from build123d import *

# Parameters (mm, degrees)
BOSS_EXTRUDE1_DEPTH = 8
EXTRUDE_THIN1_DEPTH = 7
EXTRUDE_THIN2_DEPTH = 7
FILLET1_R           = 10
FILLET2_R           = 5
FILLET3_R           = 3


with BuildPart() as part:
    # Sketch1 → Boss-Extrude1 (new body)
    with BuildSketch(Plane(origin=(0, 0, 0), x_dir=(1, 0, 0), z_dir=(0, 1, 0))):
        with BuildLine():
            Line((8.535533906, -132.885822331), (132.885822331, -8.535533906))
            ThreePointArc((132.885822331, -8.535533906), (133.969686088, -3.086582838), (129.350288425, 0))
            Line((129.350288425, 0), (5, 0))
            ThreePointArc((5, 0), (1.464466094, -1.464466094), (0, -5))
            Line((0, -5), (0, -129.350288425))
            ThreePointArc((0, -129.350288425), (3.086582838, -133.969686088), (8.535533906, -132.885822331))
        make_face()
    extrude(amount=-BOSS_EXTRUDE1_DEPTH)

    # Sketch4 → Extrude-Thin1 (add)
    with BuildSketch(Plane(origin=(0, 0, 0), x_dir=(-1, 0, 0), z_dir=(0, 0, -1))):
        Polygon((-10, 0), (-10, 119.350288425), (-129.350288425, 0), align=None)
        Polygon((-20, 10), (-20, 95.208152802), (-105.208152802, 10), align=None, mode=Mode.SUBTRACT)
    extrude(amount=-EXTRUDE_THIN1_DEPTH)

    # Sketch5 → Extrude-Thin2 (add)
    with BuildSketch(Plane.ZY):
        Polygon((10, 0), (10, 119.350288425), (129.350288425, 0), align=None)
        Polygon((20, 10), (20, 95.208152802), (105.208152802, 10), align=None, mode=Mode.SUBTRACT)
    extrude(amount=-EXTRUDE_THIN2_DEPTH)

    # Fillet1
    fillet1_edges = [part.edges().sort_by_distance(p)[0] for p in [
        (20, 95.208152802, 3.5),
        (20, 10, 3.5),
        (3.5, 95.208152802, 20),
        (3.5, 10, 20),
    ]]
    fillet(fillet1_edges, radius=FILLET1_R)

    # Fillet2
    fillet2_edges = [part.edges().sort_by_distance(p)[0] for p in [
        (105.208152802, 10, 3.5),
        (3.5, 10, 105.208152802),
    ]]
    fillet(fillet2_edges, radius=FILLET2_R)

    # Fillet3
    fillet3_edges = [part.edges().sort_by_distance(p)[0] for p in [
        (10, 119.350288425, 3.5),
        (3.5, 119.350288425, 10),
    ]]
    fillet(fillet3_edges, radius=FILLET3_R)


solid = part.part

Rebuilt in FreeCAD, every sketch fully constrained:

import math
import FreeCAD as App
import Part
import Sketcher
from FreeCAD import Vector


def edges_at(feature, points):
    """Names of the edges that pass closest to the given points."""
    edges = feature.Shape.Edges
    near = lambda p: min(range(len(edges)), key=lambda i: edges[i].distToShape(Part.Vertex(*p))[0])
    return sorted({f"Edge{near(p) + 1}" for p in points})


def add_polygon(sketch, points):
    """Adds a closed chain of lines whose ends are joined by coincident constraints."""
    first, n = sketch.GeometryCount, len(points)
    for a, b in zip(points, points[1:] + points[:1]):
        sketch.addGeometry(Part.LineSegment(App.Vector(*a, 0), App.Vector(*b, 0)), False)
    for i in range(n):
        sketch.addConstraint(Sketcher.Constraint("Coincident", first + i, 2, first + (i + 1) % n, 1))

doc = App.newDocument("Part")
body = doc.addObject("PartDesign::Body", "Body")

# Sketch on XZ plane
sketch1 = body.newObject("Sketcher::SketchObject", "Sketch")
sketch1.AttachmentSupport = (doc.getObject("XZ_Plane"), [""])
sketch1.MapMode = "FlatFace"
sketch1.addGeometry([
    Part.LineSegment(Vector(8.535534, 132.885822, 0), Vector(132.885822, 8.535534, 0)),  # 0
    Part.ArcOfCircle(Part.Circle(Vector(129.350288, 5, 0), Vector(0, 0, 1), 5), math.radians(-90), math.radians(45)),  # 1
    Part.LineSegment(Vector(129.350288, 0, 0), Vector(5, 0, 0)),  # 2
    Part.ArcOfCircle(Part.Circle(Vector(5, 5, 0), Vector(0, 0, 1), 5), math.radians(180), math.radians(270)),  # 3
    Part.LineSegment(Vector(0, 5, 0), Vector(0, 129.350288, 0)),  # 4
    Part.ArcOfCircle(Part.Circle(Vector(5, 129.350288, 0), Vector(0, 0, 1), 5), math.radians(45), math.radians(180)),  # 5
], False)
sketch1.addConstraint([
    Sketcher.Constraint("Tangent", 0, 2, 1, 2),
    Sketcher.Constraint("Tangent", 1, 1, 2, 1),
    Sketcher.Constraint("Tangent", 2, 2, 3, 2),
    Sketcher.Constraint("Tangent", 3, 1, 4, 1),
    Sketcher.Constraint("Tangent", 4, 2, 5, 2),
    Sketcher.Constraint("Tangent", 5, 1, 0, 1),
    Sketcher.Constraint("Horizontal", 2),
    Sketcher.Constraint("Vertical", 4),
    Sketcher.Constraint("Equal", 1, 3),
    Sketcher.Constraint("Equal", 3, 5),
    Sketcher.Constraint("PointOnObject", 1, 1, -1),
    Sketcher.Constraint("PointOnObject", 3, 1, -2),
    Sketcher.Constraint("Equal", 2, 4),
    Sketcher.Constraint("Radius", 1, 5.0),
    Sketcher.Constraint("DistanceX", 2, 2, 2, 1, 124.350288),
])
pad1 = body.newObject("PartDesign::Pad", "Pad")
pad1.Profile = sketch1
pad1.Length = 8

# Sketch on XY plane
sketch2 = body.newObject("Sketcher::SketchObject", "Sketch001")
sketch2.AttachmentSupport = (doc.getObject("XY_Plane"), [""])
sketch2.MapMode = "FlatFace"
add_polygon(sketch2, [(10, 0), (10, 119.350288), (129.350288, 0)])  # lines 0-2
add_polygon(sketch2, [(20, 95.208153), (20, 10), (105.208153, 10)])  # lines 3-5
sketch2.addConstraint([
    Sketcher.Constraint("Vertical", 0),
    Sketcher.Constraint("Horizontal", 2),
    Sketcher.Constraint("Vertical", 3),
    Sketcher.Constraint("Horizontal", 4),
    Sketcher.Constraint("PointOnObject", 1, 2, -1),
    Sketcher.Constraint("Parallel", 1, 5),
    Sketcher.Constraint("Equal", 2, 0),
    Sketcher.Constraint("DistanceX", -1, 1, 0, 2, 10.0),
    Sketcher.Constraint("DistanceX", -1, 1, 3, 2, 20.0),
    Sketcher.Constraint("DistanceY", -1, 1, 3, 2, 10.0),
    Sketcher.Constraint("DistanceX", 2, 2, 2, 1, 119.350288),
    Sketcher.Constraint("DistanceX", 4, 1, 4, 2, 85.208153),
])
pad2 = body.newObject("PartDesign::Pad", "Pad001")
pad2.Profile = sketch2
pad2.Length = 7

# Sketch on YZ plane
sketch3 = body.newObject("Sketcher::SketchObject", "Sketch002")
sketch3.AttachmentSupport = (doc.getObject("YZ_Plane"), [""])
sketch3.MapMode = "FlatFace"
add_polygon(sketch3, [(119.350288, 10), (0, 10), (0, 129.350288)])  # lines 0-2
add_polygon(sketch3, [(10, 20), (95.208153, 20), (10, 105.208153)])  # lines 3-5
sketch3.addConstraint([
    Sketcher.Constraint("Horizontal", 0),
    Sketcher.Constraint("Vertical", 1),
    Sketcher.Constraint("Horizontal", 3),
    Sketcher.Constraint("Vertical", 5),
    Sketcher.Constraint("PointOnObject", 0, 2, -2),
    Sketcher.Constraint("Parallel", 2, 4),
    Sketcher.Constraint("Equal", 0, 1),
    Sketcher.Constraint("DistanceY", -1, 1, 0, 2, 10.0),
    Sketcher.Constraint("DistanceY", -1, 1, 3, 2, 20.0),
    Sketcher.Constraint("DistanceX", -1, 1, 4, 2, 10.0),
    Sketcher.Constraint("DistanceX", 0, 2, 0, 1, 119.350288),
    Sketcher.Constraint("DistanceX", 3, 1, 3, 2, 85.208153),
])
pad3 = body.newObject("PartDesign::Pad", "Pad002")
pad3.Profile = sketch3
pad3.Length = 7
doc.recompute()

fillet = body.newObject("PartDesign::Fillet", "Fillet")
fillet.Base = (pad3, edges_at(pad3, [
    (20, 95.208, 3.5),
    (20, 10, 3.5),
    (3.5, 95.208, 20),
    (3.5, 10, 20),
]))
fillet.Radius = 10
doc.recompute()

fillet2 = body.newObject("PartDesign::Fillet", "Fillet001")
fillet2.Base = (fillet, edges_at(fillet, [(105.208, 10, 3.5), (3.5, 10, 105.208)]))
fillet2.Radius = 5
doc.recompute()

fillet3 = body.newObject("PartDesign::Fillet", "Fillet002")
fillet3.Base = (fillet2, edges_at(fillet2, [(10, 119.35, 3.5), (3.5, 119.35, 10)]))
fillet3.Radius = 3

doc.recompute()
